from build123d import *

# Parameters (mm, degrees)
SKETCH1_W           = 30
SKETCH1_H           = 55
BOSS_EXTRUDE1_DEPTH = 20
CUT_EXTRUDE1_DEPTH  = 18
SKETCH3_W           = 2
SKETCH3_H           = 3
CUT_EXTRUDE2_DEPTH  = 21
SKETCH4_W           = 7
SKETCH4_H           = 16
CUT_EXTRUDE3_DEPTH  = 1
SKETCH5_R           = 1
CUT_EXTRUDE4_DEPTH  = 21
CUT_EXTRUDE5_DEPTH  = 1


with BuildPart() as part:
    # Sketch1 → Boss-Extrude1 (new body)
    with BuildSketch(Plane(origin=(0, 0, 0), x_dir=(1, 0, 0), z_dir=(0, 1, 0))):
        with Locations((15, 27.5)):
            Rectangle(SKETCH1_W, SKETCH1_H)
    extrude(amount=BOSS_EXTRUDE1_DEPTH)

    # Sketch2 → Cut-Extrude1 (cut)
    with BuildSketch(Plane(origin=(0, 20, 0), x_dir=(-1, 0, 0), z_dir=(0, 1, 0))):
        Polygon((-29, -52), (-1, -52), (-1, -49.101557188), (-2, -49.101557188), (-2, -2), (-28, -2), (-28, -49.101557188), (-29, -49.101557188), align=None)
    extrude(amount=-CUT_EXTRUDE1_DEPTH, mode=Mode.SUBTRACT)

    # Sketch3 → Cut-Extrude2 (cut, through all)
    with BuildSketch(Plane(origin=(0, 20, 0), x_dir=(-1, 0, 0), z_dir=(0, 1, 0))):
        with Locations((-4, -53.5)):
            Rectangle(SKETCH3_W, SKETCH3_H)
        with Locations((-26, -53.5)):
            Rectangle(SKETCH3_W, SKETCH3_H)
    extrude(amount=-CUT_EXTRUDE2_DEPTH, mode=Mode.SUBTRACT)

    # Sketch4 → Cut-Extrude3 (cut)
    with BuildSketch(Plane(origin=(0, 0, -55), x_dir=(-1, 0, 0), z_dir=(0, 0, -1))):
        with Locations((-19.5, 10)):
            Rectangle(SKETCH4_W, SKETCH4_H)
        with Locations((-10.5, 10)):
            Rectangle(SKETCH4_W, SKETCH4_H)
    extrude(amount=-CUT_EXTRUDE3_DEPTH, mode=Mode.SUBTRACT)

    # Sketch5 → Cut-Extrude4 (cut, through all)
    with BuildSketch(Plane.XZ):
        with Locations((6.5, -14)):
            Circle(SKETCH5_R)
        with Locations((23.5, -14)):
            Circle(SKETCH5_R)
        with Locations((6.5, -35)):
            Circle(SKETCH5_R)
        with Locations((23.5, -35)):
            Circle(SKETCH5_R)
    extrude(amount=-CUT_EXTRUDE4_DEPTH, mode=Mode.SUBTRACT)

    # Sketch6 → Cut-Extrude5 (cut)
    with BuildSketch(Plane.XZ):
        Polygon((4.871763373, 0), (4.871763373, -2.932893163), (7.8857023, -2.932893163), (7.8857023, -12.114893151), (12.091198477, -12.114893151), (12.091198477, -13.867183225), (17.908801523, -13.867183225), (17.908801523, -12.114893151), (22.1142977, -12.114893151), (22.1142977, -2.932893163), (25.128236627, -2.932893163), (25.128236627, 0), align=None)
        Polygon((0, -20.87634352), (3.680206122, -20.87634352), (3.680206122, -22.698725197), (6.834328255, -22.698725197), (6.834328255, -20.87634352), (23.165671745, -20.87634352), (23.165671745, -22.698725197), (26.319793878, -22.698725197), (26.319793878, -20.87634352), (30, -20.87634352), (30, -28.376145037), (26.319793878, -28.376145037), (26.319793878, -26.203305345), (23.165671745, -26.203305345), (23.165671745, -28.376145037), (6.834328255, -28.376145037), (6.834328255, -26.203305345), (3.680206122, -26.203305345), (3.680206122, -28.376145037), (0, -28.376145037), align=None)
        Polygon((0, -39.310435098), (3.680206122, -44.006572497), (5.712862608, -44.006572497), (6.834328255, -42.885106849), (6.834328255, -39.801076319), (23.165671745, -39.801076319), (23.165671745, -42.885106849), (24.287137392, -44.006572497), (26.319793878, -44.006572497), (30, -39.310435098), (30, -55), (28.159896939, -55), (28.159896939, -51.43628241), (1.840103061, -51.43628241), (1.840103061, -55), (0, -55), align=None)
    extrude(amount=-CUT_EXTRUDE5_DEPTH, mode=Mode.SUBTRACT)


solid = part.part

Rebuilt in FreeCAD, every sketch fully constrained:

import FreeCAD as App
import Part
import Sketcher

V = App.Vector

doc = App.newDocument("Part")
body = doc.addObject("PartDesign::Body", "Body")

sketch1 = doc.addObject("Sketcher::SketchObject", "Sketch")
body.addObject(sketch1)
sketch1.AttachmentSupport = (doc.XZ_Plane, [""])
sketch1.MapMode = "FlatFace"
sketch1.addGeometry([
    Part.LineSegment(V(0, -55, 0), V(0, 0, 0)),
    Part.LineSegment(V(0, 0, 0), V(30, 0, 0)),
    Part.LineSegment(V(30, 0, 0), V(30, -55, 0)),
    Part.LineSegment(V(30, -55, 0), V(0, -55, 0)),
], False)
sketch1.addConstraint([
    Sketcher.Constraint("Coincident", 0, 2, 1, 1),
    Sketcher.Constraint("Coincident", 1, 2, 2, 1),
    Sketcher.Constraint("Coincident", 2, 2, 3, 1),
    Sketcher.Constraint("Coincident", 3, 2, 0, 1),
    Sketcher.Constraint("Vertical", 0),
    Sketcher.Constraint("Horizontal", 1),
    Sketcher.Constraint("Vertical", 2),
    Sketcher.Constraint("Horizontal", 3),
    Sketcher.Constraint("Coincident", 0, 2, -1, 1),
    Sketcher.Constraint("DistanceX", 1, 1, 1, 2, 30.0),
    Sketcher.Constraint("DistanceY", 0, 1, 0, 2, 55.0),
])
pad1 = doc.addObject("PartDesign::Pad", "Pad")
body.addObject(pad1)
pad1.Profile = sketch1
pad1.Length = 20
pad1.Reversed = True

sketch2 = doc.addObject("Sketcher::SketchObject", "Sketch001")
body.addObject(sketch2)
sketch2.AttachmentSupport = (doc.XZ_Plane, [""])
sketch2.MapMode = "FlatFace"
sketch2.AttachmentOffset = App.Placement(V(0, 0, -20), App.Rotation())
sketch2.addGeometry([
    Part.LineSegment(V(29, -52, 0), V(1, -52, 0)),
    Part.LineSegment(V(1, -52, 0), V(1, -49.101557, 0)),
    Part.LineSegment(V(1, -49.101557, 0), V(2, -49.101557, 0)),
    Part.LineSegment(V(2, -49.101557, 0), V(2, -2, 0)),
    Part.LineSegment(V(2, -2, 0), V(28, -2, 0)),
    Part.LineSegment(V(28, -2, 0), V(28, -49.101557, 0)),
    Part.LineSegment(V(28, -49.101557, 0), V(29, -49.101557, 0)),
    Part.LineSegment(V(29, -49.101557, 0), V(29, -52, 0)),
], False)
sketch2.addConstraint([
    Sketcher.Constraint("Coincident", 0, 2, 1, 1),
    Sketcher.Constraint("Coincident", 1, 2, 2, 1),
    Sketcher.Constraint("Coincident", 2, 2, 3, 1),
    Sketcher.Constraint("Coincident", 3, 2, 4, 1),
    Sketcher.Constraint("Coincident", 4, 2, 5, 1),
    Sketcher.Constraint("Coincident", 5, 2, 6, 1),
    Sketcher.Constraint("Coincident", 6, 2, 7, 1),
    Sketcher.Constraint("Coincident", 7, 2, 0, 1),
    Sketcher.Constraint("Horizontal", 0),
    Sketcher.Constraint("Vertical", 1),
    Sketcher.Constraint("Horizontal", 2),
    Sketcher.Constraint("Vertical", 3),
    Sketcher.Constraint("Horizontal", 4),
    Sketcher.Constraint("Vertical", 5),
    Sketcher.Constraint("Horizontal", 6),
    Sketcher.Constraint("Vertical", 7),
    Sketcher.Constraint("Horizontal", 2, 2, 5, 2),
    Sketcher.Constraint("Equal", 2, 6),
    Sketcher.Constraint("DistanceX", 0, 2, 0, 1, 28.0),
    Sketcher.Constraint("DistanceX", 2, 1, 2, 2, 1.0),
    Sketcher.Constraint("DistanceX", -1, 1, 0, 2, 1.0),
    Sketcher.Constraint("DistanceY", 0, 2, -1, 1, 52.0),
    Sketcher.Constraint("DistanceY", 3, 2, -1, 1, 2.0),
    Sketcher.Constraint("DistanceY", 1, 1, 1, 2, 2.898443),
])
pocket1 = doc.addObject("PartDesign::Pocket", "Pocket")
body.addObject(pocket1)
pocket1.Profile = sketch2
pocket1.Length = 18
pocket1.Reversed = True

sketch3 = doc.addObject("Sketcher::SketchObject", "Sketch002")
body.addObject(sketch3)
sketch3.AttachmentSupport = (doc.XZ_Plane, [""])
sketch3.MapMode = "FlatFace"
sketch3.AttachmentOffset = App.Placement(V(0, 0, -20), App.Rotation())
sketch3.addGeometry([
    Part.LineSegment(V(5, -52, 0), V(5, -55, 0)),
    Part.LineSegment(V(5, -55, 0), V(3, -55, 0)),
    Part.LineSegment(V(3, -55, 0), V(3, -52, 0)),
    Part.LineSegment(V(3, -52, 0), V(5, -52, 0)),
    Part.LineSegment(V(27, -52, 0), V(27, -55, 0)),
    Part.LineSegment(V(27, -55, 0), V(25, -55, 0)),
    Part.LineSegment(V(25, -55, 0), V(25, -52, 0)),
    Part.LineSegment(V(25, -52, 0), V(27, -52, 0)),
], False)
sketch3.addConstraint([
    Sketcher.Constraint("Coincident", 0, 2, 1, 1),
    Sketcher.Constraint("Coincident", 1, 2, 2, 1),
    Sketcher.Constraint("Coincident", 2, 2, 3, 1),
    Sketcher.Constraint("Coincident", 3, 2, 0, 1),
    Sketcher.Constraint("Coincident", 4, 2, 5, 1),
    Sketcher.Constraint("Coincident", 5, 2, 6, 1),
    Sketcher.Constraint("Coincident", 6, 2, 7, 1),
    Sketcher.Constraint("Coincident", 7, 2, 4, 1),
    Sketcher.Constraint("Vertical", 0),
    Sketcher.Constraint("Horizontal", 1),
    Sketcher.Constraint("Vertical", 2),
    Sketcher.Constraint("Horizontal", 3),
    Sketcher.Constraint("Vertical", 4),
    Sketcher.Constraint("Horizontal", 5),
    Sketcher.Constraint("Vertical", 6),
    Sketcher.Constraint("Horizontal", 7),
    Sketcher.Constraint("Horizontal", 1, 2, 4, 2),
    Sketcher.Constraint("Horizontal", 3, 2, 6, 2),
    Sketcher.Constraint("Equal", 3, 5),
    Sketcher.Constraint("DistanceX", 1, 2, 1, 1, 2.0),
    Sketcher.Constraint("DistanceY", 0, 2, 0, 1, 3.0),
    Sketcher.Constraint("DistanceX", -1, 1, 0, 2, 5.0),
    Sketcher.Constraint("DistanceY", 0, 2, -1, 1, 55.0),
    Sketcher.Constraint("DistanceX", -1, 1, 4, 2, 27.0),
])
pocket2 = doc.addObject("PartDesign::Pocket", "Pocket001")
body.addObject(pocket2)
pocket2.Profile = sketch3
pocket2.Type = "ThroughAll"
pocket2.Reversed = True

sketch4 = doc.addObject("Sketcher::SketchObject", "Sketch003")
body.addObject(sketch4)
sketch4.AttachmentSupport = (doc.XY_Plane, [""])
sketch4.MapMode = "FlatFace"
sketch4.AttachmentOffset = App.Placement(V(0, 0, -55), App.Rotation())
sketch4.addGeometry([
    Part.LineSegment(V(23, 18, 0), V(23, 2, 0)),
    Part.LineSegment(V(23, 2, 0), V(16, 2, 0)),
    Part.LineSegment(V(16, 2, 0), V(16, 18, 0)),
    Part.LineSegment(V(16, 18, 0), V(23, 18, 0)),
    Part.LineSegment(V(14, 18, 0), V(14, 2, 0)),
    Part.LineSegment(V(14, 2, 0), V(7, 2, 0)),
    Part.LineSegment(V(7, 2, 0), V(7, 18, 0)),
    Part.LineSegment(V(7, 18, 0), V(14, 18, 0)),
], False)
sketch4.addConstraint([
    Sketcher.Constraint("Coincident", 0, 2, 1, 1),
    Sketcher.Constraint("Coincident", 1, 2, 2, 1),
    Sketcher.Constraint("Coincident", 2, 2, 3, 1),
    Sketcher.Constraint("Coincident", 3, 2, 0, 1),
    Sketcher.Constraint("Coincident", 4, 2, 5, 1),
    Sketcher.Constraint("Coincident", 5, 2, 6, 1),
    Sketcher.Constraint("Coincident", 6, 2, 7, 1),
    Sketcher.Constraint("Coincident", 7, 2, 4, 1),
    Sketcher.Constraint("Vertical", 0),
    Sketcher.Constraint("Horizontal", 1),
    Sketcher.Constraint("Vertical", 2),
    Sketcher.Constraint("Horizontal", 3),
    Sketcher.Constraint("Vertical", 4),
    Sketcher.Constraint("Horizontal", 5),
    Sketcher.Constraint("Vertical", 6),
    Sketcher.Constraint("Horizontal", 7),
    Sketcher.Constraint("Horizontal", 1, 2, 4, 2),
    Sketcher.Constraint("Horizontal", 3, 2, 6, 2),
    Sketcher.Constraint("Equal", 3, 5),
    Sketcher.Constraint("DistanceX", 1, 2, 1, 1, 7.0),
    Sketcher.Constraint("DistanceY", 0, 2, 0, 1, 16.0),
    Sketcher.Constraint("DistanceX", -1, 1, 0, 2, 23.0),
    Sketcher.Constraint("DistanceY", -1, 1, 0, 2, 2.0),
    Sketcher.Constraint("DistanceX", -1, 1, 4, 2, 14.0),
])
pocket3 = doc.addObject("PartDesign::Pocket", "Pocket002")
body.addObject(pocket3)
pocket3.Profile = sketch4
pocket3.Length = 1
pocket3.Reversed = True

sketch5 = doc.addObject("Sketcher::SketchObject", "Sketch004")
body.addObject(sketch5)
sketch5.AttachmentSupport = (doc.XZ_Plane, [""])
sketch5.MapMode = "FlatFace"
sketch5.addGeometry([
    Part.Circle(V(6.5, -14, 0), V(0, 0, 1), 1),
    Part.Circle(V(23.5, -14, 0), V(0, 0, 1), 1),
    Part.Circle(V(6.5, -35, 0), V(0, 0, 1), 1),
    Part.Circle(V(23.5, -35, 0), V(0, 0, 1), 1),
], False)
sketch5.addConstraint([
    Sketcher.Constraint("Equal", 0, 1),
    Sketcher.Constraint("Equal", 1, 2),
    Sketcher.Constraint("Equal", 2, 3),
    Sketcher.Constraint("Horizontal", 0, 3, 1, 3),
    Sketcher.Constraint("Horizontal", 2, 3, 3, 3),
    Sketcher.Constraint("Vertical", 0, 3, 2, 3),
    Sketcher.Constraint("Vertical", 1, 3, 3, 3),
    Sketcher.Constraint("Diameter", 0, 2.0),
    Sketcher.Constraint("DistanceY", 0, 3, -1, 1, 14.0),
    Sketcher.Constraint("DistanceY", 2, 3, -1, 1, 35.0),
    Sketcher.Constraint("DistanceX", 0, 3, 1, 3, 17.0),
    Sketcher.Constraint("DistanceX", -1, 1, 0, 3, 6.5),
])
pocket4 = doc.addObject("PartDesign::Pocket", "Pocket003")
body.addObject(pocket4)
pocket4.Profile = sketch5
pocket4.Type = "ThroughAll"

sketch6 = doc.addObject("Sketcher::SketchObject", "Sketch005")
body.addObject(sketch6)
sketch6.AttachmentSupport = (doc.XZ_Plane, [""])
sketch6.MapMode = "FlatFace"
sketch6.addGeometry([
    Part.LineSegment(V(4.871763, 0, 0), V(4.871763, -2.932893, 0)),
    Part.LineSegment(V(4.871763, -2.932893, 0), V(7.885702, -2.932893, 0)),
    Part.LineSegment(V(7.885702, -2.932893, 0), V(7.885702, -12.114893, 0)),
    Part.LineSegment(V(7.885702, -12.114893, 0), V(12.091198, -12.114893, 0)),
    Part.LineSegment(V(12.091198, -12.114893, 0), V(12.091198, -13.867183, 0)),
    Part.LineSegment(V(12.091198, -13.867183, 0), V(17.908802, -13.867183, 0)),
    Part.LineSegment(V(17.908802, -13.867183, 0), V(17.908802, -12.114893, 0)),
    Part.LineSegment(V(17.908802, -12.114893, 0), V(22.114298, -12.114893, 0)),
    Part.LineSegment(V(22.114298, -12.114893, 0), V(22.114298, -2.932893, 0)),
    Part.LineSegment(V(22.114298, -2.932893, 0), V(25.128237, -2.932893, 0)),
    Part.LineSegment(V(25.128237, -2.932893, 0), V(25.128237, 0, 0)),
    Part.LineSegment(V(25.128237, 0, 0), V(4.871763, 0, 0)),
    Part.LineSegment(V(3.680206, -20.876344, 0), V(0, -20.876344, 0)),
    Part.LineSegment(V(0, -20.876344, 0), V(0, -28.376145, 0)),
    Part.LineSegment(V(0, -28.376145, 0), V(3.680206, -28.376145, 0)),
    Part.LineSegment(V(3.680206, -28.376145, 0), V(3.680206, -26.203305, 0)),
    Part.LineSegment(V(3.680206, -26.203305, 0), V(6.834328, -26.203305, 0)),
    Part.LineSegment(V(6.834328, -26.203305, 0), V(6.834328, -28.376145, 0)),
    Part.LineSegment(V(6.834328, -28.376145, 0), V(23.165672, -28.376145, 0)),
    Part.LineSegment(V(23.165672, -28.376145, 0), V(23.165672, -26.203305, 0)),
    Part.LineSegment(V(23.165672, -26.203305, 0), V(26.319794, -26.203305, 0)),
    Part.LineSegment(V(26.319794, -26.203305, 0), V(26.319794, -28.376145, 0)),
    Part.LineSegment(V(26.319794, -28.376145, 0), V(30, -28.376145, 0)),
    Part.LineSegment(V(30, -28.376145, 0), V(30, -20.876344, 0)),
    Part.LineSegment(V(30, -20.876344, 0), V(26.319794, -20.876344, 0)),
    Part.LineSegment(V(26.319794, -20.876344, 0), V(26.319794, -22.698725, 0)),
    Part.LineSegment(V(26.319794, -22.698725, 0), V(23.165672, -22.698725, 0)),
    Part.LineSegment(V(23.165672, -22.698725, 0), V(23.165672, -20.876344, 0)),
    Part.LineSegment(V(23.165672, -20.876344, 0), V(6.834328, -20.876344, 0)),
    Part.LineSegment(V(6.834328, -20.876344, 0), V(6.834328, -22.698725, 0)),
    Part.LineSegment(V(6.834328, -22.698725, 0), V(3.680206, -22.698725, 0)),
    Part.LineSegment(V(3.680206, -22.698725, 0), V(3.680206, -20.876344, 0)),
    Part.LineSegment(V(3.680206, -44.006572, 0), V(0, -39.310435, 0)),
    Part.LineSegment(V(0, -39.310435, 0), V(0, -55, 0)),
    Part.LineSegment(V(0, -55, 0), V(1.840103, -55, 0)),
    Part.LineSegment(V(1.840103, -55, 0), V(1.840103, -51.436282, 0)),
    Part.LineSegment(V(1.840103, -51.436282, 0), V(28.159897, -51.436282, 0)),
    Part.LineSegment(V(28.159897, -51.436282, 0), V(28.159897, -55, 0)),
    Part.LineSegment(V(28.159897, -55, 0), V(30, -55, 0)),
    Part.LineSegment(V(30, -55, 0), V(30, -39.310435, 0)),
    Part.LineSegment(V(30, -39.310435, 0), V(26.319794, -44.006572, 0)),
    Part.LineSegment(V(26.319794, -44.006572, 0), V(24.287137, -44.006572, 0)),
    Part.LineSegment(V(24.287137, -44.006572, 0), V(23.165672, -42.885107, 0)),
    Part.LineSegment(V(23.165672, -42.885107, 0), V(23.165672, -39.801076, 0)),
    Part.LineSegment(V(23.165672, -39.801076, 0), V(6.834328, -39.801076, 0)),
    Part.LineSegment(V(6.834328, -39.801076, 0), V(6.834328, -42.885107, 0)),
    Part.LineSegment(V(6.834328, -42.885107, 0), V(5.712863, -44.006572, 0)),
    Part.LineSegment(V(5.712863, -44.006572, 0), V(3.680206, -44.006572, 0)),
], False)
sketch6.addConstraint([
    Sketcher.Constraint("Coincident", 0, 2, 1, 1),
    Sketcher.Constraint("Coincident", 1, 2, 2, 1),
    Sketcher.Constraint("Coincident", 2, 2, 3, 1),
    Sketcher.Constraint("Coincident", 3, 2, 4, 1),
    Sketcher.Constraint("Coincident", 4, 2, 5, 1),
    Sketcher.Constraint("Coincident", 5, 2, 6, 1),
    Sketcher.Constraint("Coincident", 6, 2, 7, 1),
    Sketcher.Constraint("Coincident", 7, 2, 8, 1),
    Sketcher.Constraint("Coincident", 8, 2, 9, 1),
    Sketcher.Constraint("Coincident", 9, 2, 10, 1),
    Sketcher.Constraint("Coincident", 10, 2, 11, 1),
    Sketcher.Constraint("Coincident", 11, 2, 0, 1),
    Sketcher.Constraint("Coincident", 12, 2, 13, 1),
    Sketcher.Constraint("Coincident", 13, 2, 14, 1),
    Sketcher.Constraint("Coincident", 14, 2, 15, 1),
    Sketcher.Constraint("Coincident", 15, 2, 16, 1),
    Sketcher.Constraint("Coincident", 16, 2, 17, 1),
    Sketcher.Constraint("Coincident", 17, 2, 18, 1),
    Sketcher.Constraint("Coincident", 18, 2, 19, 1),
    Sketcher.Constraint("Coincident", 19, 2, 20, 1),
    Sketcher.Constraint("Coincident", 20, 2, 21, 1),
    Sketcher.Constraint("Coincident", 21, 2, 22, 1),
    Sketcher.Constraint("Coincident", 22, 2, 23, 1),
    Sketcher.Constraint("Coincident", 23, 2, 24, 1),
    Sketcher.Constraint("Coincident", 24, 2, 25, 1),
    Sketcher.Constraint("Coincident", 25, 2, 26, 1),
    Sketcher.Constraint("Coincident", 26, 2, 27, 1),
    Sketcher.Constraint("Coincident", 27, 2, 28, 1),
    Sketcher.Constraint("Coincident", 28, 2, 29, 1),
    Sketcher.Constraint("Coincident", 29, 2, 30, 1),
    Sketcher.Constraint("Coincident", 30, 2, 31, 1),
    Sketcher.Constraint("Coincident", 31, 2, 12, 1),
    Sketcher.Constraint("Coincident", 32, 2, 33, 1),
    Sketcher.Constraint("Coincident", 33, 2, 34, 1),
    Sketcher.Constraint("Coincident", 34, 2, 35, 1),
    Sketcher.Constraint("Coincident", 35, 2, 36, 1),
    Sketcher.Constraint("Coincident", 36, 2, 37, 1),
    Sketcher.Constraint("Coincident", 37, 2, 38, 1),
    Sketcher.Constraint("Coincident", 38, 2, 39, 1),
    Sketcher.Constraint("Coincident", 39, 2, 40, 1),
    Sketcher.Constraint("Coincident", 40, 2, 41, 1),
    Sketcher.Constraint("Coincident", 41, 2, 42, 1),
    Sketcher.Constraint("Coincident", 42, 2, 43, 1),
    Sketcher.Constraint("Coincident", 43, 2, 44, 1),
    Sketcher.Constraint("Coincident", 44, 2, 45, 1),
    Sketcher.Constraint("Coincident", 45, 2, 46, 1),
    Sketcher.Constraint("Coincident", 46, 2, 47, 1),
    Sketcher.Constraint("Coincident", 47, 2, 32, 1),
    Sketcher.Constraint("Vertical", 0),
    Sketcher.Constraint("Horizontal", 1),
    Sketcher.Constraint("Vertical", 2),
    Sketcher.Constraint("Horizontal", 3),
    Sketcher.Constraint("Vertical", 4),
    Sketcher.Constraint("Horizontal", 5),
    Sketcher.Constraint("Vertical", 6),
    Sketcher.Constraint("Horizontal", 7),
    Sketcher.Constraint("Vertical", 8),
    Sketcher.Constraint("Horizontal", 9),
    Sketcher.Constraint("Vertical", 10),
    Sketcher.Constraint("Horizontal", 11),
    Sketcher.Constraint("Horizontal", 12),
    Sketcher.Constraint("Vertical", 13),
    Sketcher.Constraint("Horizontal", 14),
    Sketcher.Constraint("Vertical", 15),
    Sketcher.Constraint("Horizontal", 16),
    Sketcher.Constraint("Vertical", 17),
    Sketcher.Constraint("Horizontal", 18),
    Sketcher.Constraint("Vertical", 19),
    Sketcher.Constraint("Horizontal", 20),
    Sketcher.Constraint("Vertical", 21),
    Sketcher.Constraint("Horizontal", 22),
    Sketcher.Constraint("Vertical", 23),
    Sketcher.Constraint("Horizontal", 24),
    Sketcher.Constraint("Vertical", 25),
    Sketcher.Constraint("Horizontal", 26),
    Sketcher.Constraint("Vertical", 27),
    Sketcher.Constraint("Horizontal", 28),
    Sketcher.Constraint("Vertical", 29),
    Sketcher.Constraint("Horizontal", 30),
    Sketcher.Constraint("Vertical", 31),
    Sketcher.Constraint("Vertical", 33),
    Sketcher.Constraint("Horizontal", 34),
    Sketcher.Constraint("Vertical", 35),
    Sketcher.Constraint("Horizontal", 36),
    Sketcher.Constraint("Vertical", 37),
    Sketcher.Constraint("Horizontal", 38),
    Sketcher.Constraint("Vertical", 39),
    Sketcher.Constraint("Horizontal", 41),
    Sketcher.Constraint("Vertical", 43),
    Sketcher.Constraint("Horizontal", 44),
    Sketcher.Constraint("Vertical", 45),
    Sketcher.Constraint("Horizontal", 47),
    Sketcher.Constraint("PointOnObject", 10, 2, -1),
    Sketcher.Constraint("PointOnObject", 12, 2, -2),
    Sketcher.Constraint("PointOnObject", 32, 2, -2),
    Sketcher.Constraint("Perpendicular", 42, 46),
    Sketcher.Constraint("Horizontal", 3, 2, 6, 2),
    Sketcher.Constraint("Horizontal", 1, 2, 8, 2),
    Sketcher.Constraint("Horizontal", 14, 2, 17, 2),
    Sketcher.Constraint("Horizontal", 16, 2, 19, 2),
    Sketcher.Constraint("Horizontal", 18, 2, 21, 2),
    Sketcher.Constraint("Horizontal", 12, 2, 23, 2),
    Sketcher.Constraint("Horizontal", 24, 2, 27, 2),
    Sketcher.Constraint("Horizontal", 26, 2, 29, 2),
    Sketcher.Constraint("Horizontal", 34, 2, 37, 2),
    Sketcher.Constraint("Horizontal", 32, 2, 39, 2),
    Sketcher.Constraint("Horizontal", 42, 2, 45, 2),
    Sketcher.Constraint("Horizontal", 41, 2, 46, 2),
    Sketcher.Constraint("Vertical", 21, 2, 24, 2),
    Sketcher.Constraint("Vertical", 19, 2, 26, 2),
    Sketcher.Constraint("Vertical", 17, 2, 28, 2),
    Sketcher.Constraint("Vertical", 15, 2, 30, 2),
    Sketcher.Constraint("Vertical", 23, 2, 38, 2),
    Sketcher.Constraint("Vertical", 25, 2, 40, 2),
    Sketcher.Constraint("Vertical", 27, 2, 42, 2),
    Sketcher.Constraint("Vertical", 29, 2, 44, 2),
    Sketcher.Constraint("Vertical", 31, 2, 47, 2),
    Sketcher.Constraint("Equal", 3, 7),
    Sketcher.Constraint("Equal", 1, 9),
    Sketcher.Constraint("Equal", 16, 20),
    Sketcher.Constraint("Equal", 14, 22),
    Sketcher.Constraint("Equal", 34, 38),
    Sketcher.Constraint("Equal", 41, 47),
    Sketcher.Constraint("DistanceX", -1, 1, 22, 2, 30.0),
    Sketcher.Constraint("DistanceY", 33, 2, -1, 1, 55.0),
    Sketcher.Constraint("DistanceY", 2, 2, 2, 1, 9.182),
    Sketcher.Constraint("DistanceY", 13, 2, 13, 1, 7.499802),
    Sketcher.Constraint("DistanceX", 1, 1, 1, 2, 3.013939),
    Sketcher.Constraint("DistanceY", 4, 2, 4, 1, 1.75229),
    Sketcher.Constraint("DistanceY", 15, 1, 15, 2, 2.17284),
    Sketcher.Constraint("DistanceY", 25, 2, 25, 1, 1.822382),
    Sketcher.Constraint("DistanceY", 43, 1, 43, 2, 3.084031),
    Sketcher.Constraint("DistanceX", -1, 1, 3, 2, 12.091198),
    Sketcher.Constraint("DistanceX", -1, 1, 5, 2, 17.908802),
    Sketcher.Constraint("DistanceX", 2, 2, 5, 2, 10.023099),
    Sketcher.Constraint("Distance", 42, 1.585992),
    Sketcher.Constraint("DistanceX", 12, 2, 12, 1, 3.680206),
    Sketcher.Constraint("DistanceX", 16, 1, 16, 2, 3.154122),
    Sketcher.Constraint("DistanceX", 34, 1, 34, 2, 1.840103),
    Sketcher.Constraint("DistanceY", 0, 2, 0, 1, 2.932893),
    Sketcher.Constraint("DistanceY", 33, 2, 33, 1, 15.689565),
    Sketcher.Constraint("DistanceY", 35, 1, 35, 2, 3.563718),
    Sketcher.Constraint("DistanceY", 12, 2, 2, 2, 8.76145),
    Sketcher.Constraint("DistanceY", 36, 2, 40, 2, 7.42971),
])
pocket5 = doc.addObject("PartDesign::Pocket", "Pocket004")
body.addObject(pocket5)
pocket5.Profile = sketch6
pocket5.Length = 1

doc.recompute()
